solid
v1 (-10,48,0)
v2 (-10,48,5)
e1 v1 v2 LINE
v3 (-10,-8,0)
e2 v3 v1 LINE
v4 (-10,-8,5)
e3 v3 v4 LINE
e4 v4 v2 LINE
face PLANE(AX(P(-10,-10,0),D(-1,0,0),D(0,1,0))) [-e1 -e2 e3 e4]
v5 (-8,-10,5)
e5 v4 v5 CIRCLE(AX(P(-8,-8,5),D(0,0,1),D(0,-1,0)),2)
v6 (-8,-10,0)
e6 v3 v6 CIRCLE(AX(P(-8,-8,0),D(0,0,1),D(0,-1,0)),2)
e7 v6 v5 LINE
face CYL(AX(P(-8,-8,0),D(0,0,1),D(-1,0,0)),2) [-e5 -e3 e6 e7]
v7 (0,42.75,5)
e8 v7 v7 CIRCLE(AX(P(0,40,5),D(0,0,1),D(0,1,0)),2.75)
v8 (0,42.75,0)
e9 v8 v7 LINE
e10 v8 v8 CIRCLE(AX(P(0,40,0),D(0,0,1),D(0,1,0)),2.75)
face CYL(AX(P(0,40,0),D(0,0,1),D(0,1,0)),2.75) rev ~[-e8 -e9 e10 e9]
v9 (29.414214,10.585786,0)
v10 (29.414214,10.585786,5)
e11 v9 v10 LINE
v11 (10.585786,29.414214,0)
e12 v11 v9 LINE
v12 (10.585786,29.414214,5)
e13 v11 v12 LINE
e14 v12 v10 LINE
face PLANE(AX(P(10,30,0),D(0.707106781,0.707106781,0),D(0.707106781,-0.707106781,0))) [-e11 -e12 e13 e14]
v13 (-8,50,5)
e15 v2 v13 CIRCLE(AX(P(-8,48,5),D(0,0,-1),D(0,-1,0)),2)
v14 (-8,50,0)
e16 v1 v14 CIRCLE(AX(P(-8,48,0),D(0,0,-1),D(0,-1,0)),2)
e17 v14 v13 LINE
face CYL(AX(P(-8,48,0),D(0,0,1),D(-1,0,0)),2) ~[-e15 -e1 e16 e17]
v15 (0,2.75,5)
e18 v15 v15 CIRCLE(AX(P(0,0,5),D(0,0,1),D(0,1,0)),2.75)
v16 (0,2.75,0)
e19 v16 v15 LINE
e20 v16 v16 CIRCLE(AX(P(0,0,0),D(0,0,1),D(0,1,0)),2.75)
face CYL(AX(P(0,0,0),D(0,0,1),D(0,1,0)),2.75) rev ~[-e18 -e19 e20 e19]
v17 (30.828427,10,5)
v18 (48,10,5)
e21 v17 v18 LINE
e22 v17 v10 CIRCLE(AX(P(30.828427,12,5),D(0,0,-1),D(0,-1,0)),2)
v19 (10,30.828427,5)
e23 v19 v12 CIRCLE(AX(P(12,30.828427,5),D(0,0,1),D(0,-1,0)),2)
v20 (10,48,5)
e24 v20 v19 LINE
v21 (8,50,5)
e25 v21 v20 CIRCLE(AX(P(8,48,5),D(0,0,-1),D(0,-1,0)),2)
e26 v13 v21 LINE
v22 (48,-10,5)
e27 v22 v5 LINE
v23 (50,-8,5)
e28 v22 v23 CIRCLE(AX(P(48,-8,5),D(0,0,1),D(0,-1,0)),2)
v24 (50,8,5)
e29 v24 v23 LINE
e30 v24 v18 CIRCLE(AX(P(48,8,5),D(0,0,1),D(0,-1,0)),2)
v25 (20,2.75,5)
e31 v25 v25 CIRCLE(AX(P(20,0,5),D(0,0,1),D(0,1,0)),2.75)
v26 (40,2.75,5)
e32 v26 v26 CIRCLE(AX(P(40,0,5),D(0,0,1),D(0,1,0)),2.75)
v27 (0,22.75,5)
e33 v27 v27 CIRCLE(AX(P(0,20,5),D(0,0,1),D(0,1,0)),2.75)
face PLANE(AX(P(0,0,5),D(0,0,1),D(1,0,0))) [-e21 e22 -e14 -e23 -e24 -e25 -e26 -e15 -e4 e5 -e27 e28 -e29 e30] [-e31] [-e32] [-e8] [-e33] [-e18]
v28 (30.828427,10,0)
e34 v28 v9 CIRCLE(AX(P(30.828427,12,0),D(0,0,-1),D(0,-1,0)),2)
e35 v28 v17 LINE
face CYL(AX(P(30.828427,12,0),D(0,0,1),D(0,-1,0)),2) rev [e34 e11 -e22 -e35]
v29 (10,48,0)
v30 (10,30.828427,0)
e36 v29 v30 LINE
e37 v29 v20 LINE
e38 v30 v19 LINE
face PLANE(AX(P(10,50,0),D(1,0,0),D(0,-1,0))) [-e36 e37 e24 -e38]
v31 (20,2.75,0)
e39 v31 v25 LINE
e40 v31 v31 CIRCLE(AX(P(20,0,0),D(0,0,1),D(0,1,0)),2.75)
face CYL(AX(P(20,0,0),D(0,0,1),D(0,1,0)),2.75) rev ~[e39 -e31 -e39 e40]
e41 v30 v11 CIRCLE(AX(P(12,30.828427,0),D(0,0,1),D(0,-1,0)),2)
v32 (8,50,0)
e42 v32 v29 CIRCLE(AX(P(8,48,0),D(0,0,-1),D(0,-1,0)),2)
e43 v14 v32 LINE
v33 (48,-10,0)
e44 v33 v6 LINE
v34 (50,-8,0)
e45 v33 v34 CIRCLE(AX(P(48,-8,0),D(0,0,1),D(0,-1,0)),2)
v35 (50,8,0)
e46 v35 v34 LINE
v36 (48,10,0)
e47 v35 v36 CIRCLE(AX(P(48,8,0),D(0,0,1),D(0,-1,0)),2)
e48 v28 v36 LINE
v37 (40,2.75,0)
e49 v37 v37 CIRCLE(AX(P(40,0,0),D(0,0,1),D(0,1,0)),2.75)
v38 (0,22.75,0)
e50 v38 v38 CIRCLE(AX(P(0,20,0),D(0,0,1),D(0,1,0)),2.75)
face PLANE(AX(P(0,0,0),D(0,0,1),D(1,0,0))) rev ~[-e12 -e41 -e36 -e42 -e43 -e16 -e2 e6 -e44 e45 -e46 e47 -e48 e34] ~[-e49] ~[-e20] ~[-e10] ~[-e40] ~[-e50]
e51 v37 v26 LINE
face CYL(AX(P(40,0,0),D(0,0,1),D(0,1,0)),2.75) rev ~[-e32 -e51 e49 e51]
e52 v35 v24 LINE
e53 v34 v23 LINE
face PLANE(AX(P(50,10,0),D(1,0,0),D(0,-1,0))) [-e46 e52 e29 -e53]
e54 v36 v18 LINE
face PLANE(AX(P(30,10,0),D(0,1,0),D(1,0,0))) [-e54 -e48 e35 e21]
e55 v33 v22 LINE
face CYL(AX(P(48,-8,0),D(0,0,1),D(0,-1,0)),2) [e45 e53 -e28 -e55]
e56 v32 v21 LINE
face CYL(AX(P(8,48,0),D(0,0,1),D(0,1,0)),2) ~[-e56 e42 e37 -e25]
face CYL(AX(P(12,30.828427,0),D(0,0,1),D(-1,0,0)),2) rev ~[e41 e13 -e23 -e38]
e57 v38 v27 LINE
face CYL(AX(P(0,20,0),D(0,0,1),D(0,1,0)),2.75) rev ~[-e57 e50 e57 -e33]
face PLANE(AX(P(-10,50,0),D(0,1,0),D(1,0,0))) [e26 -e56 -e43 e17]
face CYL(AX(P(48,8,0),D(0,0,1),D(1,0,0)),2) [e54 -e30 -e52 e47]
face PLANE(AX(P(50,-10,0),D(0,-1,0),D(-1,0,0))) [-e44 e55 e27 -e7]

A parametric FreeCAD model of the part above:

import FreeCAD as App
import Part
import Sketcher

V = App.Vector


def edges_at(feature, points):
    """Names of the edges that pass closest to the given points."""
    edges = feature.Shape.Edges
    near = lambda p: min(range(len(edges)), key=lambda i: edges[i].distToShape(Part.Vertex(*p))[0])
    return sorted({f"Edge{near(p) + 1}" for p in points})

doc = App.newDocument("Part")
body = doc.addObject("PartDesign::Body", "Body")

# Sketch on XY plane
sketch1 = body.newObject("Sketcher::SketchObject", "Sketch")
sketch1.AttachmentSupport = (doc.getObject("XY_Plane"), [""])
sketch1.MapMode = "FlatFace"
sketch1.addGeometry(Part.LineSegment(V(-10, 50, 0), V(-10, -10, 0)), False)
sketch1.addGeometry(Part.LineSegment(V(-10, -10, 0), V(50, -10, 0)), False)
sketch1.addGeometry(Part.LineSegment(V(50, -10, 0), V(50, 10, 0)), False)
sketch1.addGeometry(Part.LineSegment(V(50, 10, 0), V(30, 10, 0)), False)
sketch1.addGeometry(Part.LineSegment(V(30, 10, 0), V(10, 30, 0)), False)
sketch1.addGeometry(Part.LineSegment(V(10, 30, 0), V(10, 50, 0)), False)
sketch1.addGeometry(Part.LineSegment(V(10, 50, 0), V(-10, 50, 0)), False)
sketch1.addConstraint(Sketcher.Constraint("Coincident", 0, 2, 1, 1))
sketch1.addConstraint(Sketcher.Constraint("Coincident", 1, 2, 2, 1))
sketch1.addConstraint(Sketcher.Constraint("Coincident", 2, 2, 3, 1))
sketch1.addConstraint(Sketcher.Constraint("Coincident", 3, 2, 4, 1))
sketch1.addConstraint(Sketcher.Constraint("Coincident", 4, 2, 5, 1))
sketch1.addConstraint(Sketcher.Constraint("Coincident", 5, 2, 6, 1))
sketch1.addConstraint(Sketcher.Constraint("Coincident", 6, 2, 0, 1))
sketch1.addConstraint(Sketcher.Constraint("Vertical", 0))
sketch1.addConstraint(Sketcher.Constraint("Horizontal", 1))
sketch1.addConstraint(Sketcher.Constraint("Vertical", 2))
sketch1.addConstraint(Sketcher.Constraint("Horizontal", 3))
sketch1.addConstraint(Sketcher.Constraint("Vertical", 5))
sketch1.addConstraint(Sketcher.Constraint("Horizontal", 6))
sketch1.addConstraint(Sketcher.Constraint("Equal", 3, 6))
sketch1.addConstraint(Sketcher.Constraint("Equal", 1, 0))
sketch1.addConstraint(Sketcher.Constraint("Equal", 6, 2))
sketch1.addConstraint(Sketcher.Constraint("Equal", 2, 5))
sketch1.addConstraint(Sketcher.Constraint("DistanceX", 1, 1, 1, 2, 60.0))
sketch1.addConstraint(Sketcher.Constraint("DistanceX", 3, 2, 3, 1, 20.0))
sketch1.addConstraint(Sketcher.Constraint("DistanceX", 0, 2, -1, 1, 10.0))
sketch1.addConstraint(Sketcher.Constraint("DistanceY", 0, 2, -1, 1, 10.0))
pad1 = body.newObject("PartDesign::Pad", "Pad")
pad1.Profile = sketch1
pad1.Length = 5

# Sketch on XY plane
sketch2 = body.newObject("Sketcher::SketchObject", "Sketch001")
sketch2.AttachmentSupport = (doc.getObject("XY_Plane"), [""])
sketch2.MapMode = "FlatFace"
sketch2.addGeometry(Part.Circle(V(0, 40, 0), V(0, 0, 1), 2.8), False)
sketch2.addGeometry(Part.Circle(V(0, 20, 0), V(0, 0, 1), 2.8), False)
sketch2.addGeometry(Part.Circle(V(20, 0, 0), V(0, 0, 1), 2.8), False)
sketch2.addGeometry(Part.Circle(V(40, 0, 0), V(0, 0, 1), 2.8), False)
sketch2.addGeometry(Part.Circle(V(0, 0, 0), V(0, 0, 1), 2.8), False)
sketch2.addConstraint(Sketcher.Constraint("Coincident", 4, 3, -1, 1))
sketch2.addConstraint(Sketcher.Constraint("Equal", 0, 1))
sketch2.addConstraint(Sketcher.Constraint("Equal", 1, 2))
sketch2.addConstraint(Sketcher.Constraint("Equal", 2, 3))
sketch2.addConstraint(Sketcher.Constraint("Equal", 3, 4))
sketch2.addConstraint(Sketcher.Constraint("PointOnObject", 0, 3, -2))
sketch2.addConstraint(Sketcher.Constraint("PointOnObject", 1, 3, -2))
sketch2.addConstraint(Sketcher.Constraint("PointOnObject", 2, 3, -1))
sketch2.addConstraint(Sketcher.Constraint("PointOnObject", 3, 3, -1))
sketch2.addConstraint(Sketcher.Constraint("Diameter", 0, 5.5))
sketch2.addConstraint(Sketcher.Constraint("DistanceY", -1, 1, 0, 3, 40.0))
sketch2.addConstraint(Sketcher.Constraint("DistanceY", -1, 1, 1, 3, 20.0))
sketch2.addConstraint(Sketcher.Constraint("DistanceX", -1, 1, 2, 3, 20.0))
sketch2.addConstraint(Sketcher.Constraint("DistanceX", -1, 1, 3, 3, 40.0))
doc.recompute()
hole = body.newObject("PartDesign::Hole", "Hole")
hole.Profile = sketch2
hole.ThreadType = "None"
hole.Diameter = 5.5
hole.DepthType = "ThroughAll"
hole.Reversed = True
doc.recompute()

fillet = body.newObject("PartDesign::Fillet", "Fillet")
fillet.Base = (hole, edges_at(hole, [
    (-10, 50, 2.5),
    (10, 50, 2.5),
    (10, 30, 2.5),
    (-10, -10, 2.5),
    (30, 10, 2.5),
    (50, 10, 2.5),
    (50, -10, 2.5),
]))
fillet.Radius = 2

doc.recompute()
